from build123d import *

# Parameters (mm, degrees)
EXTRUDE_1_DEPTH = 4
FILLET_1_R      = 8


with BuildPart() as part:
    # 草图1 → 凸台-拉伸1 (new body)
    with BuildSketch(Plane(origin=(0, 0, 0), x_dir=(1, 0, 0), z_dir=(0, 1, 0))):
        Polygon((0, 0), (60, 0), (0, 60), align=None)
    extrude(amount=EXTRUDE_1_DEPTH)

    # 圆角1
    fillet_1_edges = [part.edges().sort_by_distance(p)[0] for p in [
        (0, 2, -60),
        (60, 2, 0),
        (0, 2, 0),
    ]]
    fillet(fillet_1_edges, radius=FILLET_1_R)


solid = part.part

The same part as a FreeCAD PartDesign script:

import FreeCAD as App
import Part
import Sketcher


def edges_at(feature, points):
    """Names of the edges that pass closest to the given points."""
    edges = feature.Shape.Edges
    near = lambda p: min(range(len(edges)), key=lambda i: edges[i].distToShape(Part.Vertex(*p))[0])
    return sorted({f"Edge{near(p) + 1}" for p in points})


def add_polygon(sketch, points):
    """Adds a closed chain of lines whose ends are joined by coincident constraints."""
    first, n = sketch.GeometryCount, len(points)
    for a, b in zip(points, points[1:] + points[:1]):
        sketch.addGeometry(Part.LineSegment(App.Vector(*a, 0), App.Vector(*b, 0)), False)
    for i in range(n):
        sketch.addConstraint(Sketcher.Constraint("Coincident", first + i, 2, first + (i + 1) % n, 1))

doc = App.newDocument("Part")
params = doc.addObject("Spreadsheet::Sheet", "Params")
for row, (alias, value) in enumerate([
    ("sketch1_width", "60 mm"),
    ("pad1_length", "4 mm"),
    ("fillet_radius", "8 mm"),
], start=1):
    params.set(f"A{row}", alias)
    params.set(f"B{row}", "=" + value)
    params.setAlias(f"B{row}", alias)

body = doc.addObject("PartDesign::Body", "Body")

# Sketch on XZ plane
sketch1 = body.newObject("Sketcher::SketchObject", "Sketch")
sketch1.AttachmentSupport = (doc.getObject("XZ_Plane"), [""])
sketch1.MapMode = "FlatFace"
add_polygon(sketch1, [(0, 0), (60, 0), (0, -60)])  # lines 0-2
sketch1.addConstraint([
    Sketcher.Constraint("Horizontal", 0),
    Sketcher.Constraint("Vertical", 2),
    Sketcher.Constraint("Coincident", 2, 2, -1, 1),
    Sketcher.Constraint("Equal", 0, 2),
    Sketcher.Constraint("DistanceX", 0, 1, 0, 2, 60.0),
])
sketch1.setExpression("Constraints[7]", "Params.sketch1_width")
pad1 = body.newObject("PartDesign::Pad", "Pad")
pad1.Profile = sketch1
pad1.setExpression("Length", "Params.pad1_length")
pad1.Reversed = True
doc.recompute()

fillet = body.newObject("PartDesign::Fillet", "Fillet")
fillet.Base = (pad1, edges_at(pad1, [(0, 2, -60), (60, 2, 0), (0, 2, 0)]))
fillet.setExpression("Radius", "Params.fillet_radius")

doc.recompute()
